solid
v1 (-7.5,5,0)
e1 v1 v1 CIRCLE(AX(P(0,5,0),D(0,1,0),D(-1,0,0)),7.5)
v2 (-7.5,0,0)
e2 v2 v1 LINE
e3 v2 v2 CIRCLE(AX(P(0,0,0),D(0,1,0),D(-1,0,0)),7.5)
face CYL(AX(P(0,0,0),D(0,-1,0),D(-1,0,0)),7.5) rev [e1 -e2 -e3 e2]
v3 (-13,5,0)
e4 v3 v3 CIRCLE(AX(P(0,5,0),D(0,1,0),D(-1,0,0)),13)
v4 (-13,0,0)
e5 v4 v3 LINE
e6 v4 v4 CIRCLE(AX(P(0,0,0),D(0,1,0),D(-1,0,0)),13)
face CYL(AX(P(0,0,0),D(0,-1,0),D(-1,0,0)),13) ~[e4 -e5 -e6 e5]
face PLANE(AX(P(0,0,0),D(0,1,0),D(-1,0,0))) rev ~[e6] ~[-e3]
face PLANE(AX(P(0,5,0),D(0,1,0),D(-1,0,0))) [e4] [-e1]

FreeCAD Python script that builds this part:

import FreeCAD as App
import Part
import Sketcher
from FreeCAD import Vector

doc = App.newDocument("Part")
body = doc.addObject("PartDesign::Body", "Body")

# Sketch on XZ plane
sketch1 = body.newObject("Sketcher::SketchObject", "Sketch")
sketch1.AttachmentSupport = (doc.getObject("XZ_Plane"), [""])
sketch1.MapMode = "FlatFace"
sketch1.addGeometry(Part.Circle(Vector(0, 0, 0), Vector(0, 0, 1), 13), False)
sketch1.addGeometry(Part.Circle(Vector(0, 0, 0), Vector(0, 0, 1), 8), False)
sketch1.addConstraint(Sketcher.Constraint("Coincident", 0, 3, -1, 1))
sketch1.addConstraint(Sketcher.Constraint("Coincident", 1, 3, -1, 1))
sketch1.addConstraint(Sketcher.Constraint("Diameter", 0, 26.0))
sketch1.addConstraint(Sketcher.Constraint("Diameter", 1, 15.0))
pad1 = body.newObject("PartDesign::Pad", "Pad")
pad1.Profile = sketch1
pad1.Length = 5
pad1.Reversed = True

doc.recompute()
